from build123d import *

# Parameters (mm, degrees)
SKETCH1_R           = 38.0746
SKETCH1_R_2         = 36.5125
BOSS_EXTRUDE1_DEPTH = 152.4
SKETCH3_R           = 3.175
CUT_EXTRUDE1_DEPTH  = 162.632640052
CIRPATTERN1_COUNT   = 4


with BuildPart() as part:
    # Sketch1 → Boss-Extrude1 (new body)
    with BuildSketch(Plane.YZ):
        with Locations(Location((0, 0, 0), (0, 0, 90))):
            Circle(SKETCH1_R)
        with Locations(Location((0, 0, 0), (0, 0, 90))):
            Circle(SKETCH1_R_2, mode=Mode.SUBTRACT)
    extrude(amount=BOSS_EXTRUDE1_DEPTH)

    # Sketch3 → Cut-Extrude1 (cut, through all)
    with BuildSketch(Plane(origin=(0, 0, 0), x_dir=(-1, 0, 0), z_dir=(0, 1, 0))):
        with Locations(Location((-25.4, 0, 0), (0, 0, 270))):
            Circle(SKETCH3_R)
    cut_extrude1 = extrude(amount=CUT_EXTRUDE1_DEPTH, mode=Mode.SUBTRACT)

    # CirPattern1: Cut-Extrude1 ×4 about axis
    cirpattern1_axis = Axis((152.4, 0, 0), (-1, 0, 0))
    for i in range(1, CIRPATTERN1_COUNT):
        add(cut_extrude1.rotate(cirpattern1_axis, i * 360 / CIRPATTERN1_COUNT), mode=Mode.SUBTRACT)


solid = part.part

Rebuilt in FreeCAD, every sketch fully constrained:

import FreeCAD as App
import Part
import Sketcher
from FreeCAD import Vector
Q = App.Units.Quantity

doc = App.newDocument("Part")
params = doc.addObject("Spreadsheet::Sheet", "Params")
for row, (alias, value) in enumerate([
    ("sketch1_diameter", "2.998 in"),
    ("sketch1_diameter2", "2.875 in"),
    ("pad1_length", "6 in"),
    ("sketch2_diameter", "0.25 in"),
], start=1):
    params.set(f"A{row}", alias)
    params.set(f"B{row}", "=" + value)
    params.setAlias(f"B{row}", alias)

body = doc.addObject("PartDesign::Body", "Body")

# Sketch on YZ plane
sketch1 = doc.addObject("Sketcher::SketchObject", "Sketch")
body.addObject(sketch1)
sketch1.AttachmentSupport = (doc.YZ_Plane, [""])
sketch1.MapMode = "FlatFace"
sketch1.addGeometry(Part.Circle(Vector(0, 0, 0), Vector(0, 0, 1), 38), False)
sketch1.addGeometry(Part.Circle(Vector(0, 0, 0), Vector(0, 0, 1), 37), False)
sketch1.addConstraint(Sketcher.Constraint("Coincident", 0, 3, -1, 1))
sketch1.addConstraint(Sketcher.Constraint("Coincident", 1, 3, -1, 1))
sketch1.addConstraint(Sketcher.Constraint("Diameter", 0, Q("2.998 in")))
sketch1.addConstraint(Sketcher.Constraint("Diameter", 1, Q("2.875 in")))
sketch1.setExpression("Constraints[2]", "Params.sketch1_diameter")
sketch1.setExpression("Constraints[3]", "Params.sketch1_diameter2")
pad1 = doc.addObject("PartDesign::Pad", "Pad")
body.addObject(pad1)
pad1.Profile = sketch1
pad1.setExpression("Length", "Params.pad1_length")

# Sketch on XZ plane
sketch2 = doc.addObject("Sketcher::SketchObject", "Sketch001")
body.addObject(sketch2)
sketch2.AttachmentSupport = (doc.XZ_Plane, [""])
sketch2.MapMode = "FlatFace"
sketch2.addGeometry(Part.Circle(Vector(25.4, 0, 0), Vector(0, 0, 1), 3.2), False)
sketch2.addConstraint(Sketcher.Constraint("PointOnObject", 0, 3, -1))
sketch2.addConstraint(Sketcher.Constraint("Diameter", 0, Q("0.25 in")))
sketch2.addConstraint(Sketcher.Constraint("DistanceX", -1, 1, 0, 3, Q("1 in")))
sketch2.setExpression("Constraints[1]", "Params.sketch2_diameter")
pocket1 = doc.addObject("PartDesign::Pocket", "Pocket")
body.addObject(pocket1)
pocket1.Profile = sketch2
pocket1.Type = "ThroughAll"
doc.recompute()

polarpattern = doc.addObject("PartDesign::PolarPattern", "PolarPattern")
body.addObject(polarpattern)
polarpattern.Originals = [pocket1]
polarpattern.Axis = (doc.X_Axis, [""])
polarpattern.Angle = 360
polarpattern.Occurrences = 4
body.Tip = polarpattern

doc.recompute()
